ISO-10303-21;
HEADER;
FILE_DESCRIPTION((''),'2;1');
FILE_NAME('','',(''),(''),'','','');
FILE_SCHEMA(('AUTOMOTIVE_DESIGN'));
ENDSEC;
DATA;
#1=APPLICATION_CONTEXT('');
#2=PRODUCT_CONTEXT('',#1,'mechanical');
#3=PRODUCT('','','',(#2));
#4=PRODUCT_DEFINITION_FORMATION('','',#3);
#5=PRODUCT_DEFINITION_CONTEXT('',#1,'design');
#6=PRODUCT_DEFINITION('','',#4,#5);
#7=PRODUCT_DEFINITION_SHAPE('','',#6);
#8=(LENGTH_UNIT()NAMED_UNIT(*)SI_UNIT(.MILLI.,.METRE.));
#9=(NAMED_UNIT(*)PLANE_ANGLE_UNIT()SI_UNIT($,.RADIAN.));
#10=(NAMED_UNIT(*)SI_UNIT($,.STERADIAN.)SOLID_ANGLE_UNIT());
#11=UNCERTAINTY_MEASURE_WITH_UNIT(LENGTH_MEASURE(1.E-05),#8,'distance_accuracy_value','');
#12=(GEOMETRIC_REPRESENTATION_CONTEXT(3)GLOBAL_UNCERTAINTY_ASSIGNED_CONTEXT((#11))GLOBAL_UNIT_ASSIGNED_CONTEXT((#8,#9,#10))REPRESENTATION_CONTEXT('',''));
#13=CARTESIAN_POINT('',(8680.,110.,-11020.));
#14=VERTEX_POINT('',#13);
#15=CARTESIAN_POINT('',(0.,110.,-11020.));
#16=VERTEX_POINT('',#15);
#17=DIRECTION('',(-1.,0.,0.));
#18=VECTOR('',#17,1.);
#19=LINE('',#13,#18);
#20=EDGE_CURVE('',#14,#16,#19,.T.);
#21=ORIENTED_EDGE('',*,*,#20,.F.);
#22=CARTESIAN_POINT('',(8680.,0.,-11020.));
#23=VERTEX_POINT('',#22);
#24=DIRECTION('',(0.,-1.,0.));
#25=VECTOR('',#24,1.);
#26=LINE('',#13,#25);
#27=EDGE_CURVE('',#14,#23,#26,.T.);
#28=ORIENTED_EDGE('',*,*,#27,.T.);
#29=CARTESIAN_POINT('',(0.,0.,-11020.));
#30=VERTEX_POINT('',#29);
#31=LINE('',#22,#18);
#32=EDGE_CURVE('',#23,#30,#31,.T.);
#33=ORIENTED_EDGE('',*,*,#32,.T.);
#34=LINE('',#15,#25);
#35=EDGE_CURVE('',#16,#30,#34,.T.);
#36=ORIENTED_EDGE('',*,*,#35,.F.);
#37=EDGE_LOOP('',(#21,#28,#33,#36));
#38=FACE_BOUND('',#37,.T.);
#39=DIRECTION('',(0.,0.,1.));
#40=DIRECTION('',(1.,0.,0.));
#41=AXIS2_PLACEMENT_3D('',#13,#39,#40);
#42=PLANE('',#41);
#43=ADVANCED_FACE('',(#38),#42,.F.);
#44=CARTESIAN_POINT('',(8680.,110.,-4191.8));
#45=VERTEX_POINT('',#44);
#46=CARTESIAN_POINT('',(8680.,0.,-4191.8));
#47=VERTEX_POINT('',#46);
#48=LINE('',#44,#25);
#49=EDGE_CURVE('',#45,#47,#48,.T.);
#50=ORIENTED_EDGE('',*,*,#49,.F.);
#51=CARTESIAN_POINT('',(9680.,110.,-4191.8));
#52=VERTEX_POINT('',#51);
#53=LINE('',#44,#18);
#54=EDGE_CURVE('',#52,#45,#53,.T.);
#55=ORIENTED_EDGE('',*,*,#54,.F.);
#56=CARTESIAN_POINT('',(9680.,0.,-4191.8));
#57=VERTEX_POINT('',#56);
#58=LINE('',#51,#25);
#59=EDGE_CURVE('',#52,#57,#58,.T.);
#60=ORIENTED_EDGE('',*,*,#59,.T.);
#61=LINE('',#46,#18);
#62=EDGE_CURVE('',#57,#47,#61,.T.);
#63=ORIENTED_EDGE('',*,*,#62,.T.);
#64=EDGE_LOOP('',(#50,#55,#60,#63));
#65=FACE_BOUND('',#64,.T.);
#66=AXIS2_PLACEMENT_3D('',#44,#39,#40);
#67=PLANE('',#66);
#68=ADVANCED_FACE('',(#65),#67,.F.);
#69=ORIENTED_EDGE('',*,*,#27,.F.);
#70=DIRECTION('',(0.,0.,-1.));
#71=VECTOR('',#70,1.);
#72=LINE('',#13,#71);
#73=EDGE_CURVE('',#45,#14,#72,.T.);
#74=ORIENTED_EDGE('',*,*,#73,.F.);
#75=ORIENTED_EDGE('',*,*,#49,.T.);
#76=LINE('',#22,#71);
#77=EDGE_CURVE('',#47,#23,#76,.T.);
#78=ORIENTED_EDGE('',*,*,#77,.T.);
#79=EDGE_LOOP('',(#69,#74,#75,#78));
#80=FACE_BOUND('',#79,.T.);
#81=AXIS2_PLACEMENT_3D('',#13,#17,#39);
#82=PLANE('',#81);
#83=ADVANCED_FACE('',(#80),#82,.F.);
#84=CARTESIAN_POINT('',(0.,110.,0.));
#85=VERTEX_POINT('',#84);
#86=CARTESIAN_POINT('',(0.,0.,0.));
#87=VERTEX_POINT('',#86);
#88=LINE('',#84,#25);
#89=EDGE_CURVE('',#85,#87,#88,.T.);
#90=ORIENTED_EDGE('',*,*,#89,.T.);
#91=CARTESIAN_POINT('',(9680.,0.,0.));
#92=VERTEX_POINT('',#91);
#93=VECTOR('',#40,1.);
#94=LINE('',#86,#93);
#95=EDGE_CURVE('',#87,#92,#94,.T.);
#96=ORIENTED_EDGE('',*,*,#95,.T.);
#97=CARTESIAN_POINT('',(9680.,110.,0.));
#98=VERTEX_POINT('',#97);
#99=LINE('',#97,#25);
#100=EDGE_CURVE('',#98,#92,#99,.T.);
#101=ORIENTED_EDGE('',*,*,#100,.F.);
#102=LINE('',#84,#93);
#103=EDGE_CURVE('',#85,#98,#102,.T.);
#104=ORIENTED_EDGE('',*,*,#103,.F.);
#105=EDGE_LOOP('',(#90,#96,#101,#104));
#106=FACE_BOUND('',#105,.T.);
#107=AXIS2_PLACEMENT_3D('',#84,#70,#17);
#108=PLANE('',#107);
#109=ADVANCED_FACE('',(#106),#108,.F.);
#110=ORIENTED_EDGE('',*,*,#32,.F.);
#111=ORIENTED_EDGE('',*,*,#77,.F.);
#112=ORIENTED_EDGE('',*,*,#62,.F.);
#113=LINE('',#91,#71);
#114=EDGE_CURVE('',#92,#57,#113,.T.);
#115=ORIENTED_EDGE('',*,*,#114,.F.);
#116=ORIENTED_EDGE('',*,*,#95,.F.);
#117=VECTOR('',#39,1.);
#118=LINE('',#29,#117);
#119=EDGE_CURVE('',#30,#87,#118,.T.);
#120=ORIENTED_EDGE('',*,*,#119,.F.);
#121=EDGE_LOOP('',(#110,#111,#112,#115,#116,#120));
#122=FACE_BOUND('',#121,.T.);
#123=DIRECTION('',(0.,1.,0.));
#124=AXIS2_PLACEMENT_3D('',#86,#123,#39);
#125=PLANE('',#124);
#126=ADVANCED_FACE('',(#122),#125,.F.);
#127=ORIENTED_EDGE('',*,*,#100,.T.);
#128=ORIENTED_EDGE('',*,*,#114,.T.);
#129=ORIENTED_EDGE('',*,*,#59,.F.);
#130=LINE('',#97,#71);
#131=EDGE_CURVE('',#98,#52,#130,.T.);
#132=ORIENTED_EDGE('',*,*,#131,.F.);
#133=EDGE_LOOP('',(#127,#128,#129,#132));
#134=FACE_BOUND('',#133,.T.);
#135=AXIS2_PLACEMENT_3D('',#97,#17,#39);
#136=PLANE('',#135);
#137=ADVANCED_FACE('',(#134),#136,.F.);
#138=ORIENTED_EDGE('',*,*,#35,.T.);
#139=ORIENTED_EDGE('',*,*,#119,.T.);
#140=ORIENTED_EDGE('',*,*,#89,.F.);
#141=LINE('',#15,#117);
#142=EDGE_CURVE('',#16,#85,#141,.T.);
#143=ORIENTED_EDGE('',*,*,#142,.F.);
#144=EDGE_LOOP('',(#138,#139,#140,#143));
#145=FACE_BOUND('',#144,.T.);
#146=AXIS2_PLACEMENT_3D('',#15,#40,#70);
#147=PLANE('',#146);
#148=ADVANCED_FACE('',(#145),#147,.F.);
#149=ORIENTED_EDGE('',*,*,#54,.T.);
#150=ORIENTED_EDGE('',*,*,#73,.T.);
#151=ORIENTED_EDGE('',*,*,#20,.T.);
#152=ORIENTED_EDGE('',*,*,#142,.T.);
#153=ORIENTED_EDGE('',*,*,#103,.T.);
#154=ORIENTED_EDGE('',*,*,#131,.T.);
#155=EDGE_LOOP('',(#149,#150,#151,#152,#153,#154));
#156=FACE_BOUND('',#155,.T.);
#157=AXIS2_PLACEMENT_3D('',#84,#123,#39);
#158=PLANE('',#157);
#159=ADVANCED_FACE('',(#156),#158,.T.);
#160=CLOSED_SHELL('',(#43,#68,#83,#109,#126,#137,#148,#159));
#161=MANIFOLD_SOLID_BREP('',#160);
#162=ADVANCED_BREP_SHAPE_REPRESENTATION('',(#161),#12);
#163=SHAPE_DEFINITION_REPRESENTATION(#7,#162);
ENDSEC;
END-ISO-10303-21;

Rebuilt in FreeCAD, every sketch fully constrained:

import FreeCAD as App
import Part
import Sketcher
from FreeCAD import Vector

doc = App.newDocument("Part")
params = doc.addObject("Spreadsheet::Sheet", "Params")
for row, (alias, value) in enumerate([
    ("sketch1_width", "1000 mm"),
    ("sketch1_width2", "8680 mm"),
    ("sketch1_height", "11020 mm"),
    ("sketch1_height2", "4191.8 mm"),
    ("pad1_length", "110 mm"),
], start=1):
    params.set(f"A{row}", alias)
    params.set(f"B{row}", "=" + value)
    params.setAlias(f"B{row}", alias)

body = doc.addObject("PartDesign::Body", "Body")

sketch1 = body.newObject("Sketcher::SketchObject", "Sketch")
sketch1.AttachmentSupport = (doc.getObject("XZ_Plane"), [""])
sketch1.MapMode = "FlatFace"
sketch1.addGeometry([
    Part.LineSegment(Vector(9680, 0, 0), Vector(9680, -4192, 0)),
    Part.LineSegment(Vector(9680, -4192, 0), Vector(8680, -4192, 0)),
    Part.LineSegment(Vector(8680, -4192, 0), Vector(8680, -11020, 0)),
    Part.LineSegment(Vector(8680, -11020, 0), Vector(0, -11020, 0)),
    Part.LineSegment(Vector(0, -11020, 0), Vector(0, 0, 0)),
    Part.LineSegment(Vector(0, 0, 0), Vector(9680, 0, 0)),
], False)
sketch1.addConstraint([
    Sketcher.Constraint("Coincident", 0, 2, 1, 1),
    Sketcher.Constraint("Coincident", 1, 2, 2, 1),
    Sketcher.Constraint("Coincident", 2, 2, 3, 1),
    Sketcher.Constraint("Coincident", 3, 2, 4, 1),
    Sketcher.Constraint("Coincident", 4, 2, 5, 1),
    Sketcher.Constraint("Coincident", 5, 2, 0, 1),
    Sketcher.Constraint("Vertical", 0),
    Sketcher.Constraint("Horizontal", 1),
    Sketcher.Constraint("Vertical", 2),
    Sketcher.Constraint("Horizontal", 3),
    Sketcher.Constraint("Vertical", 4),
    Sketcher.Constraint("Horizontal", 5),
    Sketcher.Constraint("Coincident", 4, 2, -1, 1),
    Sketcher.Constraint("DistanceX", 1, 2, 1, 1, 1000.0),
    Sketcher.Constraint("DistanceX", 3, 2, 3, 1, 8680.0),
    Sketcher.Constraint("DistanceY", 4, 1, 4, 2, 11020.0),
    Sketcher.Constraint("DistanceY", 0, 2, 0, 1, 4191.8),
])
sketch1.setExpression("Constraints[13]", "Params.sketch1_width")
sketch1.setExpression("Constraints[14]", "Params.sketch1_width2")
sketch1.setExpression("Constraints[15]", "Params.sketch1_height")
sketch1.setExpression("Constraints[16]", "Params.sketch1_height2")
pad1 = body.newObject("PartDesign::Pad", "Pad")
pad1.Profile = sketch1
pad1.setExpression("Length", "Params.pad1_length")
pad1.Reversed = True

doc.recompute()
